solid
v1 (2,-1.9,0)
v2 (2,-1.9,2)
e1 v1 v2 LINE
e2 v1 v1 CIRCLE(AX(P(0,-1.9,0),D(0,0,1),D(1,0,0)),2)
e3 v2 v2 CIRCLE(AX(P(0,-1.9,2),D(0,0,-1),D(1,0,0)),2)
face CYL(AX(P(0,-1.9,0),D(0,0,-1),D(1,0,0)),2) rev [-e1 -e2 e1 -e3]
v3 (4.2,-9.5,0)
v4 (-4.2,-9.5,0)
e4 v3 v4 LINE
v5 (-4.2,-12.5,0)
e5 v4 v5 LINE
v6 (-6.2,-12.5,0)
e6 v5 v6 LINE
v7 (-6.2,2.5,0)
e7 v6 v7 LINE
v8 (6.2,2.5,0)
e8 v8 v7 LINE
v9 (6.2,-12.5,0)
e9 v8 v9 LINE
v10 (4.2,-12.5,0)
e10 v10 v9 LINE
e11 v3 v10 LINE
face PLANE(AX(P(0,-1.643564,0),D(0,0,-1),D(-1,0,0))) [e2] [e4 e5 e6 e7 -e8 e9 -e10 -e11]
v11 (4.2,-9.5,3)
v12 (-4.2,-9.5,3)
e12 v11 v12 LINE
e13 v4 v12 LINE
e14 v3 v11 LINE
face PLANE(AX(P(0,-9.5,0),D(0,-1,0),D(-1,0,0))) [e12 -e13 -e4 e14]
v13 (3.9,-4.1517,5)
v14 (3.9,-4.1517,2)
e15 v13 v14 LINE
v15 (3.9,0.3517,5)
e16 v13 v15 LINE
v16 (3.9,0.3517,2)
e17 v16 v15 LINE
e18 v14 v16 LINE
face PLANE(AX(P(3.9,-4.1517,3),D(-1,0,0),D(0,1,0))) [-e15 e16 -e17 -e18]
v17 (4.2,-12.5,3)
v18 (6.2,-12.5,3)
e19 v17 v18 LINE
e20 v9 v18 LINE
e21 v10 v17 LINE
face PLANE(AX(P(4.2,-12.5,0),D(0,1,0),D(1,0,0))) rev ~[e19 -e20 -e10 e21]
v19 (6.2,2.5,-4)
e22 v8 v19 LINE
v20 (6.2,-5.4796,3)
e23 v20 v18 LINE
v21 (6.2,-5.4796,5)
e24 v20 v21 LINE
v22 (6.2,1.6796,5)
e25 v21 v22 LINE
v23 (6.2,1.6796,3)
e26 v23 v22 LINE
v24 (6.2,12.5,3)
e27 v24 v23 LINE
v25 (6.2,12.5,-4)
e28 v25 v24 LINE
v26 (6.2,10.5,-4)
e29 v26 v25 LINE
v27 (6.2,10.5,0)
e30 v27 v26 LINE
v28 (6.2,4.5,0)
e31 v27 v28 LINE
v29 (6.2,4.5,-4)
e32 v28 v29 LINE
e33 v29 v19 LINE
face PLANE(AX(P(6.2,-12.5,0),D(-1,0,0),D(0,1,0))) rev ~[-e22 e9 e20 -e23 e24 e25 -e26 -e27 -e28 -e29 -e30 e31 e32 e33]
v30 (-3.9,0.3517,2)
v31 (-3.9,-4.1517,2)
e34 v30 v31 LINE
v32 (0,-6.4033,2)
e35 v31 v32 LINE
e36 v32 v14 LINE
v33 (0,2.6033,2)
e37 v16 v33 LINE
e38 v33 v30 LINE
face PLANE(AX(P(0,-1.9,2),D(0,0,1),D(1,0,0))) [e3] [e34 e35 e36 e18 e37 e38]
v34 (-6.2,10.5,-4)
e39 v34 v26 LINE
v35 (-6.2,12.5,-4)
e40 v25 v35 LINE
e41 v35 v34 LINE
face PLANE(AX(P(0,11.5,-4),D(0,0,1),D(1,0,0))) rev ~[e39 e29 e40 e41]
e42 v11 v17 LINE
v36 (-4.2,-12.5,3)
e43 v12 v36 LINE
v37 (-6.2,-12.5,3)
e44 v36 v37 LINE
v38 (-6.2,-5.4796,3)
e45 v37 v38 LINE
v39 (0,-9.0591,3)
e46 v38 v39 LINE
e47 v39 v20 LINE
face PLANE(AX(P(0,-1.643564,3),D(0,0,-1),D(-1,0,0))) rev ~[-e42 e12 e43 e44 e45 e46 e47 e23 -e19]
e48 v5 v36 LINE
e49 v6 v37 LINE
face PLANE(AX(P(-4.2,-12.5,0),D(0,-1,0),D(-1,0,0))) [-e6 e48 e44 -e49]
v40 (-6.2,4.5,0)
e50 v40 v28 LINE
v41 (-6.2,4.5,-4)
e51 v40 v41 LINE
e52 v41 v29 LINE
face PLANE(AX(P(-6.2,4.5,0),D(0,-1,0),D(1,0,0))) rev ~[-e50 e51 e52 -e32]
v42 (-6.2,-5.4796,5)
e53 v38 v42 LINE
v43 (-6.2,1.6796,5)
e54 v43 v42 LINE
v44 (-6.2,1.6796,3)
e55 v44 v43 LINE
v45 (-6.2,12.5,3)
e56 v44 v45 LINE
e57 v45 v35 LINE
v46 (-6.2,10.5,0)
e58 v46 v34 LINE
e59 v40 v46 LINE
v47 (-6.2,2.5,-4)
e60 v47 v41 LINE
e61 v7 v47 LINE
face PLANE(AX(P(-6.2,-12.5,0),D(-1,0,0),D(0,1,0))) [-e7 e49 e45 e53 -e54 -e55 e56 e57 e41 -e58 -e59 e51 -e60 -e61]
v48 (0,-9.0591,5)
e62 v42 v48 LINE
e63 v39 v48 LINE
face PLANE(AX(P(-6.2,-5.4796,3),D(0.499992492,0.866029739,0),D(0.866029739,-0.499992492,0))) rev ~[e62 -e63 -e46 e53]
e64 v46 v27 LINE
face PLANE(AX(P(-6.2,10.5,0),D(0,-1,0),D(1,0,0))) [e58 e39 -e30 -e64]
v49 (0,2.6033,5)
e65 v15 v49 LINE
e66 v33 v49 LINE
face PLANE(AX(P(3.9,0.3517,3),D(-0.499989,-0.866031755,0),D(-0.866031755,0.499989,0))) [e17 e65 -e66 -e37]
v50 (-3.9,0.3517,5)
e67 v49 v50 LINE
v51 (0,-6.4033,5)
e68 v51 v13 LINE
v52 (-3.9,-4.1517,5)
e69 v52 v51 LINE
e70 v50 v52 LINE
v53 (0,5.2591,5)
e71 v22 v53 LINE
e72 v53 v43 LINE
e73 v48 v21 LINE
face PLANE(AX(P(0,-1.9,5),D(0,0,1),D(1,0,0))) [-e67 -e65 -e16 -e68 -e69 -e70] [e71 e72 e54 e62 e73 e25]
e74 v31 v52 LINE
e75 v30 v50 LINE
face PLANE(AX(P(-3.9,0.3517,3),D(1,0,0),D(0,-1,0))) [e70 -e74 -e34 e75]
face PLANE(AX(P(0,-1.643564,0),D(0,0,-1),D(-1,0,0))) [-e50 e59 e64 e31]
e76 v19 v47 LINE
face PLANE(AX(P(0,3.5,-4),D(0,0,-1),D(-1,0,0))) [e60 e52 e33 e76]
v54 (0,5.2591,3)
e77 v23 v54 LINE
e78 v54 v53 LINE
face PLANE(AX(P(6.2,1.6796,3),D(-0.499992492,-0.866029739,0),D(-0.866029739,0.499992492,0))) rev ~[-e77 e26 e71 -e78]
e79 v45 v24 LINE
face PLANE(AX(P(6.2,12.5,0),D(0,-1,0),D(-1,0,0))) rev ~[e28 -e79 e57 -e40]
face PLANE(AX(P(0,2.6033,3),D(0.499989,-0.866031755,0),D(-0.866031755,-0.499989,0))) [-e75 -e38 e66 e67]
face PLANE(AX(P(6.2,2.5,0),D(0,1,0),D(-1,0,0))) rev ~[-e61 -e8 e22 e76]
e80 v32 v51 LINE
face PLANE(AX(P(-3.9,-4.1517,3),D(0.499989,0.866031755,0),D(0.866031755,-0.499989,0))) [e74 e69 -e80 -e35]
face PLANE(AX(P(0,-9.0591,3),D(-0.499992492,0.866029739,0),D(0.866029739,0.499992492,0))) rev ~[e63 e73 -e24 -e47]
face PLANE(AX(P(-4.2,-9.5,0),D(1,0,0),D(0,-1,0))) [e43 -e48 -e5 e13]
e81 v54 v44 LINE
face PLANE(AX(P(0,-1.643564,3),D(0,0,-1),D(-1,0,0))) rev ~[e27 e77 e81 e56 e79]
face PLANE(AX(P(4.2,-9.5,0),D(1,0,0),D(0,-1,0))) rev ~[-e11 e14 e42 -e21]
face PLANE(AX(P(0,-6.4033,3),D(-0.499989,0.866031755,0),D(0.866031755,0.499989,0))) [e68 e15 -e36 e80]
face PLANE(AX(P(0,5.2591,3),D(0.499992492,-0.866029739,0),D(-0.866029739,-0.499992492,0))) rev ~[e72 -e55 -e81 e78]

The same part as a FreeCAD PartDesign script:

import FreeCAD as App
import Part
import Sketcher
from FreeCAD import Vector
Q = App.Units.Quantity


def add_polygon(sketch, points):
    """Adds a closed chain of lines whose ends are joined by coincident constraints."""
    first, n = sketch.GeometryCount, len(points)
    for a, b in zip(points, points[1:] + points[:1]):
        sketch.addGeometry(Part.LineSegment(App.Vector(*a, 0), App.Vector(*b, 0)), False)
    for i in range(n):
        sketch.addConstraint(Sketcher.Constraint("Coincident", first + i, 2, first + (i + 1) % n, 1))

doc = App.newDocument("Part")
params = doc.addObject("Spreadsheet::Sheet", "Params")
for row, (alias, value) in enumerate([
    ("sketch1_diameter", "4 mm"),
    ("sketch1_width", "2 mm"),
    ("sketch1_height", "20 mm"),
    ("sketch1_height2", "5 mm"),
    ("sketch1_height3", "3 mm"),
    ("pad1_length", "3 mm"),
    ("sketch2_height", "20 mm"),
    ("sketch2_height2", "15 mm"),
    ("sketch2_width", "12.4 mm"),
    ("sketch2_width2", "2.3 mm"),
    ("pad2_length", "3 mm"),
    ("pad3_length", "2 mm"),
    ("pocket1_length", "1 mm"),
    ("sketch5_height", "2 mm"),
    ("sketch5_width", "12.4 mm"),
    ("pad4_length", "4 mm"),
], start=1):
    params.set(f"A{row}", alias)
    params.set(f"B{row}", "=" + value)
    params.setAlias(f"B{row}", alias)

body = doc.addObject("PartDesign::Body", "Body")

sketch1 = body.newObject("Sketcher::SketchObject", "Sketch")
sketch1.AttachmentSupport = (doc.getObject("XY_Plane"), [""])
sketch1.MapMode = "FlatFace"
add_polygon(sketch1, [(3.9, -7.5), (3.9, 12.5), (-3.9, 12.5), (-3.9, -7.5), (-6.2, -7.5), (-6.2, -12.5), (-4.2, -12.5), (-4.2, -9.5), (4.2, -9.5), (4.2, -12.5), (6.2, -12.5), (6.2, -7.5)])
sketch1.addGeometry(Part.Circle(Vector(0, -1.9, 0), Vector(0, 0, 1), 2), False)
sketch1.addConstraint(Sketcher.Constraint("Vertical", 0))
sketch1.addConstraint(Sketcher.Constraint("Horizontal", 1))
sketch1.addConstraint(Sketcher.Constraint("Vertical", 2))
sketch1.addConstraint(Sketcher.Constraint("Horizontal", 3))
sketch1.addConstraint(Sketcher.Constraint("Vertical", 4))
sketch1.addConstraint(Sketcher.Constraint("Horizontal", 5))
sketch1.addConstraint(Sketcher.Constraint("Vertical", 6))
sketch1.addConstraint(Sketcher.Constraint("Horizontal", 7))
sketch1.addConstraint(Sketcher.Constraint("Vertical", 8))
sketch1.addConstraint(Sketcher.Constraint("Horizontal", 9))
sketch1.addConstraint(Sketcher.Constraint("Vertical", 10))
sketch1.addConstraint(Sketcher.Constraint("Horizontal", 11))
sketch1.addConstraint(Sketcher.Constraint("Symmetric", 5, 2, 8, 2, -2))
sketch1.addConstraint(Sketcher.Constraint("Symmetric", 3, 2, 10, 2, -2))
sketch1.addConstraint(Sketcher.Constraint("PointOnObject", 12, 3, -2))
sketch1.addConstraint(Sketcher.Constraint("Equal", 3, 11))
sketch1.addConstraint(Sketcher.Constraint("Diameter", 12, 4.0))
sketch1.addConstraint(Sketcher.Constraint("DistanceX", 5, 1, 5, 2, 2.0))
sketch1.addConstraint(Sketcher.Constraint("DistanceY", 0, 1, 0, 2, 20.0))
sketch1.addConstraint(Sketcher.Constraint("DistanceY", 4, 2, 4, 1, 5.0))
sketch1.addConstraint(Sketcher.Constraint("DistanceY", 6, 1, 6, 2, 3.0))
sketch1.addConstraint(Sketcher.Constraint("DistanceX", 1, 2, 1, 1, 7.8))
sketch1.addConstraint(Sketcher.Constraint("DistanceX", 3, 2, 3, 1, 2.3))
sketch1.addConstraint(Sketcher.Constraint("DistanceY", 12, 3, -1, 1, 1.9))
sketch1.addConstraint(Sketcher.Constraint("DistanceY", -1, 1, 0, 2, 12.5))
sketch1.setExpression("Constraints[28]", "Params.sketch1_diameter")
sketch1.setExpression("Constraints[29]", "Params.sketch1_width")
sketch1.setExpression("Constraints[30]", "Params.sketch1_height")
sketch1.setExpression("Constraints[31]", "Params.sketch1_height2")
sketch1.setExpression("Constraints[32]", "Params.sketch1_height3")
pad1 = body.newObject("PartDesign::Pad", "Pad")
pad1.Profile = sketch1
pad1.setExpression("Length", "Params.pad1_length")

sketch2 = body.newObject("Sketcher::SketchObject", "Sketch001")
sketch2.AttachmentSupport = (doc.getObject("XY_Plane"), [""])
sketch2.MapMode = "FlatFace"
add_polygon(sketch2, [(-6.2, -7.5), (-6.2, 12.5), (6.2, 12.5), (6.2, -7.5), (3.9, -7.5), (3.9, 7.5), (-3.9, 7.5), (-3.9, -7.5)])
sketch2.addConstraint(Sketcher.Constraint("Vertical", 0))
sketch2.addConstraint(Sketcher.Constraint("Horizontal", 1))
sketch2.addConstraint(Sketcher.Constraint("Vertical", 2))
sketch2.addConstraint(Sketcher.Constraint("Horizontal", 3))
sketch2.addConstraint(Sketcher.Constraint("Vertical", 4))
sketch2.addConstraint(Sketcher.Constraint("Horizontal", 5))
sketch2.addConstraint(Sketcher.Constraint("Vertical", 6))
sketch2.addConstraint(Sketcher.Constraint("Horizontal", 7))
sketch2.addConstraint(Sketcher.Constraint("Symmetric", 3, 2, 5, 2, -1, 1))
sketch2.addConstraint(Sketcher.Constraint("Symmetric", 2, 2, 7, 2, -2))
sketch2.addConstraint(Sketcher.Constraint("DistanceY", 0, 1, 0, 2, 20.0))
sketch2.addConstraint(Sketcher.Constraint("DistanceY", 4, 1, 4, 2, 15.0))
sketch2.addConstraint(Sketcher.Constraint("DistanceX", 1, 1, 1, 2, 12.4))
sketch2.addConstraint(Sketcher.Constraint("DistanceX", 3, 2, 3, 1, 2.3))
sketch2.setExpression("Constraints[18]", "Params.sketch2_height")
sketch2.setExpression("Constraints[19]", "Params.sketch2_height2")
sketch2.setExpression("Constraints[20]", "Params.sketch2_width")
sketch2.setExpression("Constraints[21]", "Params.sketch2_width2")
pad2 = body.newObject("PartDesign::Pad", "Pad001")
pad2.Profile = sketch2
pad2.setExpression("Length", "Params.pad2_length")

sketch3 = body.newObject("Sketcher::SketchObject", "Sketch002")
sketch3.AttachmentSupport = (doc.getObject("XY_Plane"), [""])
sketch3.MapMode = "FlatFace"
sketch3.AttachmentOffset = App.Placement(Vector(0, 0, 3), App.Rotation())
add_polygon(sketch3, [(6.2, 1.7), (0, 5.3), (-6.2, 1.7), (-6.2, -5.5), (0, -9.1), (6.2, -5.5)])
add_polygon(sketch3, [(-3.9, 0.4), (0, 2.6), (3.9, 0.4), (3.9, -4.2), (0, -6.4), (-3.9, -4.2)])
sketch3.addConstraint(Sketcher.Constraint("Vertical", 2))
sketch3.addConstraint(Sketcher.Constraint("Vertical", 5))
sketch3.addConstraint(Sketcher.Constraint("Vertical", 8))
sketch3.addConstraint(Sketcher.Constraint("Vertical", 11))
sketch3.addConstraint(Sketcher.Constraint("Symmetric", 2, 2, 4, 2, -2))
sketch3.addConstraint(Sketcher.Constraint("Symmetric", 8, 2, 10, 2, -2))
sketch3.addConstraint(Sketcher.Constraint("PointOnObject", 0, 2, -2))
sketch3.addConstraint(Sketcher.Constraint("PointOnObject", 3, 2, -2))
sketch3.addConstraint(Sketcher.Constraint("PointOnObject", 6, 2, -2))
sketch3.addConstraint(Sketcher.Constraint("PointOnObject", 9, 2, -2))
sketch3.addConstraint(Sketcher.Constraint("Parallel", 0, 3))
sketch3.addConstraint(Sketcher.Constraint("Parallel", 1, 4))
sketch3.addConstraint(Sketcher.Constraint("Parallel", 4, 6))
sketch3.addConstraint(Sketcher.Constraint("Parallel", 3, 7))
sketch3.addConstraint(Sketcher.Constraint("Parallel", 6, 9))
sketch3.addConstraint(Sketcher.Constraint("Angle", 0, Q("150.0005 deg")))
sketch3.addConstraint(Sketcher.Constraint("DistanceX", 1, 2, -1, 1, 6.2))
sketch3.addConstraint(Sketcher.Constraint("DistanceX", -1, 1, 7, 2, 3.9))
sketch3.addConstraint(Sketcher.Constraint("DistanceY", 2, 2, 2, 1, 7.1592))
sketch3.addConstraint(Sketcher.Constraint("DistanceY", 8, 2, 8, 1, 4.5034))
sketch3.addConstraint(Sketcher.Constraint("DistanceY", -1, 1, 0, 2, 5.259))
sketch3.addConstraint(Sketcher.Constraint("DistanceY", 2, 2, 6, 2, 8.083))
pad3 = body.newObject("PartDesign::Pad", "Pad002")
pad3.Profile = sketch3
pad3.setExpression("Length", "Params.pad3_length")

sketch4 = body.newObject("Sketcher::SketchObject", "Sketch003")
sketch4.AttachmentSupport = (doc.getObject("XY_Plane"), [""])
sketch4.MapMode = "FlatFace"
sketch4.AttachmentOffset = App.Placement(Vector(0, 0, 3), App.Rotation())
add_polygon(sketch4, [(3.9, -4.2), (3.9, 0.4), (0, 2.6), (-3.9, 0.4), (-3.9, -4.2), (0, -6.4)])
sketch4.addConstraint(Sketcher.Constraint("Vertical", 0))
sketch4.addConstraint(Sketcher.Constraint("Vertical", 3))
sketch4.addConstraint(Sketcher.Constraint("Symmetric", 0, 2, 2, 2, -2))
sketch4.addConstraint(Sketcher.Constraint("PointOnObject", 1, 2, -2))
sketch4.addConstraint(Sketcher.Constraint("PointOnObject", 4, 2, -2))
sketch4.addConstraint(Sketcher.Constraint("Parallel", 1, 4))
sketch4.addConstraint(Sketcher.Constraint("Parallel", 2, 5))
sketch4.addConstraint(Sketcher.Constraint("Angle", 1, Q("150.0007 deg")))
sketch4.addConstraint(Sketcher.Constraint("DistanceX", -1, 1, 0, 2, 3.9))
sketch4.addConstraint(Sketcher.Constraint("DistanceY", 0, 1, 0, 2, 4.5034))
sketch4.addConstraint(Sketcher.Constraint("DistanceY", -1, 1, 0, 2, 0.3517))
pocket1 = body.newObject("PartDesign::Pocket", "Pocket")
pocket1.Profile = sketch4
pocket1.setExpression("Length", "Params.pocket1_length")

sketch5 = body.newObject("Sketcher::SketchObject", "Sketch004")
sketch5.AttachmentSupport = (doc.getObject("XY_Plane"), [""])
sketch5.MapMode = "FlatFace"
add_polygon(sketch5, [(6.2, 10.5), (-6.2, 10.5), (-6.2, 12.5), (6.2, 12.5)])
add_polygon(sketch5, [(-6.2, 2.5), (-6.2, 4.5), (6.2, 4.5), (6.2, 2.5)])
sketch5.addConstraint(Sketcher.Constraint("Horizontal", 0))
sketch5.addConstraint(Sketcher.Constraint("Vertical", 1))
sketch5.addConstraint(Sketcher.Constraint("Horizontal", 2))
sketch5.addConstraint(Sketcher.Constraint("Vertical", 3))
sketch5.addConstraint(Sketcher.Constraint("Vertical", 4))
sketch5.addConstraint(Sketcher.Constraint("Horizontal", 5))
sketch5.addConstraint(Sketcher.Constraint("Vertical", 6))
sketch5.addConstraint(Sketcher.Constraint("Horizontal", 7))
sketch5.addConstraint(Sketcher.Constraint("Vertical", 1, 2, 4, 2))
sketch5.addConstraint(Sketcher.Constraint("Vertical", 3, 2, 5, 2))
sketch5.addConstraint(Sketcher.Constraint("Equal", 3, 4))
sketch5.addConstraint(Sketcher.Constraint("DistanceY", 1, 1, 1, 2, 2.0))
sketch5.addConstraint(Sketcher.Constraint("DistanceX", 0, 2, 0, 1, 12.4))
sketch5.addConstraint(Sketcher.Constraint("DistanceY", 4, 2, 0, 2, 6.0))
sketch5.addConstraint(Sketcher.Constraint("DistanceX", 0, 2, -1, 1, 6.2))
sketch5.addConstraint(Sketcher.Constraint("DistanceY", -1, 1, 0, 2, 10.5))
sketch5.setExpression("Constraints[19]", "Params.sketch5_height")
sketch5.setExpression("Constraints[20]", "Params.sketch5_width")
pad4 = body.newObject("PartDesign::Pad", "Pad003")
pad4.Profile = sketch5
pad4.setExpression("Length", "Params.pad4_length")
pad4.Reversed = True

doc.recompute()
